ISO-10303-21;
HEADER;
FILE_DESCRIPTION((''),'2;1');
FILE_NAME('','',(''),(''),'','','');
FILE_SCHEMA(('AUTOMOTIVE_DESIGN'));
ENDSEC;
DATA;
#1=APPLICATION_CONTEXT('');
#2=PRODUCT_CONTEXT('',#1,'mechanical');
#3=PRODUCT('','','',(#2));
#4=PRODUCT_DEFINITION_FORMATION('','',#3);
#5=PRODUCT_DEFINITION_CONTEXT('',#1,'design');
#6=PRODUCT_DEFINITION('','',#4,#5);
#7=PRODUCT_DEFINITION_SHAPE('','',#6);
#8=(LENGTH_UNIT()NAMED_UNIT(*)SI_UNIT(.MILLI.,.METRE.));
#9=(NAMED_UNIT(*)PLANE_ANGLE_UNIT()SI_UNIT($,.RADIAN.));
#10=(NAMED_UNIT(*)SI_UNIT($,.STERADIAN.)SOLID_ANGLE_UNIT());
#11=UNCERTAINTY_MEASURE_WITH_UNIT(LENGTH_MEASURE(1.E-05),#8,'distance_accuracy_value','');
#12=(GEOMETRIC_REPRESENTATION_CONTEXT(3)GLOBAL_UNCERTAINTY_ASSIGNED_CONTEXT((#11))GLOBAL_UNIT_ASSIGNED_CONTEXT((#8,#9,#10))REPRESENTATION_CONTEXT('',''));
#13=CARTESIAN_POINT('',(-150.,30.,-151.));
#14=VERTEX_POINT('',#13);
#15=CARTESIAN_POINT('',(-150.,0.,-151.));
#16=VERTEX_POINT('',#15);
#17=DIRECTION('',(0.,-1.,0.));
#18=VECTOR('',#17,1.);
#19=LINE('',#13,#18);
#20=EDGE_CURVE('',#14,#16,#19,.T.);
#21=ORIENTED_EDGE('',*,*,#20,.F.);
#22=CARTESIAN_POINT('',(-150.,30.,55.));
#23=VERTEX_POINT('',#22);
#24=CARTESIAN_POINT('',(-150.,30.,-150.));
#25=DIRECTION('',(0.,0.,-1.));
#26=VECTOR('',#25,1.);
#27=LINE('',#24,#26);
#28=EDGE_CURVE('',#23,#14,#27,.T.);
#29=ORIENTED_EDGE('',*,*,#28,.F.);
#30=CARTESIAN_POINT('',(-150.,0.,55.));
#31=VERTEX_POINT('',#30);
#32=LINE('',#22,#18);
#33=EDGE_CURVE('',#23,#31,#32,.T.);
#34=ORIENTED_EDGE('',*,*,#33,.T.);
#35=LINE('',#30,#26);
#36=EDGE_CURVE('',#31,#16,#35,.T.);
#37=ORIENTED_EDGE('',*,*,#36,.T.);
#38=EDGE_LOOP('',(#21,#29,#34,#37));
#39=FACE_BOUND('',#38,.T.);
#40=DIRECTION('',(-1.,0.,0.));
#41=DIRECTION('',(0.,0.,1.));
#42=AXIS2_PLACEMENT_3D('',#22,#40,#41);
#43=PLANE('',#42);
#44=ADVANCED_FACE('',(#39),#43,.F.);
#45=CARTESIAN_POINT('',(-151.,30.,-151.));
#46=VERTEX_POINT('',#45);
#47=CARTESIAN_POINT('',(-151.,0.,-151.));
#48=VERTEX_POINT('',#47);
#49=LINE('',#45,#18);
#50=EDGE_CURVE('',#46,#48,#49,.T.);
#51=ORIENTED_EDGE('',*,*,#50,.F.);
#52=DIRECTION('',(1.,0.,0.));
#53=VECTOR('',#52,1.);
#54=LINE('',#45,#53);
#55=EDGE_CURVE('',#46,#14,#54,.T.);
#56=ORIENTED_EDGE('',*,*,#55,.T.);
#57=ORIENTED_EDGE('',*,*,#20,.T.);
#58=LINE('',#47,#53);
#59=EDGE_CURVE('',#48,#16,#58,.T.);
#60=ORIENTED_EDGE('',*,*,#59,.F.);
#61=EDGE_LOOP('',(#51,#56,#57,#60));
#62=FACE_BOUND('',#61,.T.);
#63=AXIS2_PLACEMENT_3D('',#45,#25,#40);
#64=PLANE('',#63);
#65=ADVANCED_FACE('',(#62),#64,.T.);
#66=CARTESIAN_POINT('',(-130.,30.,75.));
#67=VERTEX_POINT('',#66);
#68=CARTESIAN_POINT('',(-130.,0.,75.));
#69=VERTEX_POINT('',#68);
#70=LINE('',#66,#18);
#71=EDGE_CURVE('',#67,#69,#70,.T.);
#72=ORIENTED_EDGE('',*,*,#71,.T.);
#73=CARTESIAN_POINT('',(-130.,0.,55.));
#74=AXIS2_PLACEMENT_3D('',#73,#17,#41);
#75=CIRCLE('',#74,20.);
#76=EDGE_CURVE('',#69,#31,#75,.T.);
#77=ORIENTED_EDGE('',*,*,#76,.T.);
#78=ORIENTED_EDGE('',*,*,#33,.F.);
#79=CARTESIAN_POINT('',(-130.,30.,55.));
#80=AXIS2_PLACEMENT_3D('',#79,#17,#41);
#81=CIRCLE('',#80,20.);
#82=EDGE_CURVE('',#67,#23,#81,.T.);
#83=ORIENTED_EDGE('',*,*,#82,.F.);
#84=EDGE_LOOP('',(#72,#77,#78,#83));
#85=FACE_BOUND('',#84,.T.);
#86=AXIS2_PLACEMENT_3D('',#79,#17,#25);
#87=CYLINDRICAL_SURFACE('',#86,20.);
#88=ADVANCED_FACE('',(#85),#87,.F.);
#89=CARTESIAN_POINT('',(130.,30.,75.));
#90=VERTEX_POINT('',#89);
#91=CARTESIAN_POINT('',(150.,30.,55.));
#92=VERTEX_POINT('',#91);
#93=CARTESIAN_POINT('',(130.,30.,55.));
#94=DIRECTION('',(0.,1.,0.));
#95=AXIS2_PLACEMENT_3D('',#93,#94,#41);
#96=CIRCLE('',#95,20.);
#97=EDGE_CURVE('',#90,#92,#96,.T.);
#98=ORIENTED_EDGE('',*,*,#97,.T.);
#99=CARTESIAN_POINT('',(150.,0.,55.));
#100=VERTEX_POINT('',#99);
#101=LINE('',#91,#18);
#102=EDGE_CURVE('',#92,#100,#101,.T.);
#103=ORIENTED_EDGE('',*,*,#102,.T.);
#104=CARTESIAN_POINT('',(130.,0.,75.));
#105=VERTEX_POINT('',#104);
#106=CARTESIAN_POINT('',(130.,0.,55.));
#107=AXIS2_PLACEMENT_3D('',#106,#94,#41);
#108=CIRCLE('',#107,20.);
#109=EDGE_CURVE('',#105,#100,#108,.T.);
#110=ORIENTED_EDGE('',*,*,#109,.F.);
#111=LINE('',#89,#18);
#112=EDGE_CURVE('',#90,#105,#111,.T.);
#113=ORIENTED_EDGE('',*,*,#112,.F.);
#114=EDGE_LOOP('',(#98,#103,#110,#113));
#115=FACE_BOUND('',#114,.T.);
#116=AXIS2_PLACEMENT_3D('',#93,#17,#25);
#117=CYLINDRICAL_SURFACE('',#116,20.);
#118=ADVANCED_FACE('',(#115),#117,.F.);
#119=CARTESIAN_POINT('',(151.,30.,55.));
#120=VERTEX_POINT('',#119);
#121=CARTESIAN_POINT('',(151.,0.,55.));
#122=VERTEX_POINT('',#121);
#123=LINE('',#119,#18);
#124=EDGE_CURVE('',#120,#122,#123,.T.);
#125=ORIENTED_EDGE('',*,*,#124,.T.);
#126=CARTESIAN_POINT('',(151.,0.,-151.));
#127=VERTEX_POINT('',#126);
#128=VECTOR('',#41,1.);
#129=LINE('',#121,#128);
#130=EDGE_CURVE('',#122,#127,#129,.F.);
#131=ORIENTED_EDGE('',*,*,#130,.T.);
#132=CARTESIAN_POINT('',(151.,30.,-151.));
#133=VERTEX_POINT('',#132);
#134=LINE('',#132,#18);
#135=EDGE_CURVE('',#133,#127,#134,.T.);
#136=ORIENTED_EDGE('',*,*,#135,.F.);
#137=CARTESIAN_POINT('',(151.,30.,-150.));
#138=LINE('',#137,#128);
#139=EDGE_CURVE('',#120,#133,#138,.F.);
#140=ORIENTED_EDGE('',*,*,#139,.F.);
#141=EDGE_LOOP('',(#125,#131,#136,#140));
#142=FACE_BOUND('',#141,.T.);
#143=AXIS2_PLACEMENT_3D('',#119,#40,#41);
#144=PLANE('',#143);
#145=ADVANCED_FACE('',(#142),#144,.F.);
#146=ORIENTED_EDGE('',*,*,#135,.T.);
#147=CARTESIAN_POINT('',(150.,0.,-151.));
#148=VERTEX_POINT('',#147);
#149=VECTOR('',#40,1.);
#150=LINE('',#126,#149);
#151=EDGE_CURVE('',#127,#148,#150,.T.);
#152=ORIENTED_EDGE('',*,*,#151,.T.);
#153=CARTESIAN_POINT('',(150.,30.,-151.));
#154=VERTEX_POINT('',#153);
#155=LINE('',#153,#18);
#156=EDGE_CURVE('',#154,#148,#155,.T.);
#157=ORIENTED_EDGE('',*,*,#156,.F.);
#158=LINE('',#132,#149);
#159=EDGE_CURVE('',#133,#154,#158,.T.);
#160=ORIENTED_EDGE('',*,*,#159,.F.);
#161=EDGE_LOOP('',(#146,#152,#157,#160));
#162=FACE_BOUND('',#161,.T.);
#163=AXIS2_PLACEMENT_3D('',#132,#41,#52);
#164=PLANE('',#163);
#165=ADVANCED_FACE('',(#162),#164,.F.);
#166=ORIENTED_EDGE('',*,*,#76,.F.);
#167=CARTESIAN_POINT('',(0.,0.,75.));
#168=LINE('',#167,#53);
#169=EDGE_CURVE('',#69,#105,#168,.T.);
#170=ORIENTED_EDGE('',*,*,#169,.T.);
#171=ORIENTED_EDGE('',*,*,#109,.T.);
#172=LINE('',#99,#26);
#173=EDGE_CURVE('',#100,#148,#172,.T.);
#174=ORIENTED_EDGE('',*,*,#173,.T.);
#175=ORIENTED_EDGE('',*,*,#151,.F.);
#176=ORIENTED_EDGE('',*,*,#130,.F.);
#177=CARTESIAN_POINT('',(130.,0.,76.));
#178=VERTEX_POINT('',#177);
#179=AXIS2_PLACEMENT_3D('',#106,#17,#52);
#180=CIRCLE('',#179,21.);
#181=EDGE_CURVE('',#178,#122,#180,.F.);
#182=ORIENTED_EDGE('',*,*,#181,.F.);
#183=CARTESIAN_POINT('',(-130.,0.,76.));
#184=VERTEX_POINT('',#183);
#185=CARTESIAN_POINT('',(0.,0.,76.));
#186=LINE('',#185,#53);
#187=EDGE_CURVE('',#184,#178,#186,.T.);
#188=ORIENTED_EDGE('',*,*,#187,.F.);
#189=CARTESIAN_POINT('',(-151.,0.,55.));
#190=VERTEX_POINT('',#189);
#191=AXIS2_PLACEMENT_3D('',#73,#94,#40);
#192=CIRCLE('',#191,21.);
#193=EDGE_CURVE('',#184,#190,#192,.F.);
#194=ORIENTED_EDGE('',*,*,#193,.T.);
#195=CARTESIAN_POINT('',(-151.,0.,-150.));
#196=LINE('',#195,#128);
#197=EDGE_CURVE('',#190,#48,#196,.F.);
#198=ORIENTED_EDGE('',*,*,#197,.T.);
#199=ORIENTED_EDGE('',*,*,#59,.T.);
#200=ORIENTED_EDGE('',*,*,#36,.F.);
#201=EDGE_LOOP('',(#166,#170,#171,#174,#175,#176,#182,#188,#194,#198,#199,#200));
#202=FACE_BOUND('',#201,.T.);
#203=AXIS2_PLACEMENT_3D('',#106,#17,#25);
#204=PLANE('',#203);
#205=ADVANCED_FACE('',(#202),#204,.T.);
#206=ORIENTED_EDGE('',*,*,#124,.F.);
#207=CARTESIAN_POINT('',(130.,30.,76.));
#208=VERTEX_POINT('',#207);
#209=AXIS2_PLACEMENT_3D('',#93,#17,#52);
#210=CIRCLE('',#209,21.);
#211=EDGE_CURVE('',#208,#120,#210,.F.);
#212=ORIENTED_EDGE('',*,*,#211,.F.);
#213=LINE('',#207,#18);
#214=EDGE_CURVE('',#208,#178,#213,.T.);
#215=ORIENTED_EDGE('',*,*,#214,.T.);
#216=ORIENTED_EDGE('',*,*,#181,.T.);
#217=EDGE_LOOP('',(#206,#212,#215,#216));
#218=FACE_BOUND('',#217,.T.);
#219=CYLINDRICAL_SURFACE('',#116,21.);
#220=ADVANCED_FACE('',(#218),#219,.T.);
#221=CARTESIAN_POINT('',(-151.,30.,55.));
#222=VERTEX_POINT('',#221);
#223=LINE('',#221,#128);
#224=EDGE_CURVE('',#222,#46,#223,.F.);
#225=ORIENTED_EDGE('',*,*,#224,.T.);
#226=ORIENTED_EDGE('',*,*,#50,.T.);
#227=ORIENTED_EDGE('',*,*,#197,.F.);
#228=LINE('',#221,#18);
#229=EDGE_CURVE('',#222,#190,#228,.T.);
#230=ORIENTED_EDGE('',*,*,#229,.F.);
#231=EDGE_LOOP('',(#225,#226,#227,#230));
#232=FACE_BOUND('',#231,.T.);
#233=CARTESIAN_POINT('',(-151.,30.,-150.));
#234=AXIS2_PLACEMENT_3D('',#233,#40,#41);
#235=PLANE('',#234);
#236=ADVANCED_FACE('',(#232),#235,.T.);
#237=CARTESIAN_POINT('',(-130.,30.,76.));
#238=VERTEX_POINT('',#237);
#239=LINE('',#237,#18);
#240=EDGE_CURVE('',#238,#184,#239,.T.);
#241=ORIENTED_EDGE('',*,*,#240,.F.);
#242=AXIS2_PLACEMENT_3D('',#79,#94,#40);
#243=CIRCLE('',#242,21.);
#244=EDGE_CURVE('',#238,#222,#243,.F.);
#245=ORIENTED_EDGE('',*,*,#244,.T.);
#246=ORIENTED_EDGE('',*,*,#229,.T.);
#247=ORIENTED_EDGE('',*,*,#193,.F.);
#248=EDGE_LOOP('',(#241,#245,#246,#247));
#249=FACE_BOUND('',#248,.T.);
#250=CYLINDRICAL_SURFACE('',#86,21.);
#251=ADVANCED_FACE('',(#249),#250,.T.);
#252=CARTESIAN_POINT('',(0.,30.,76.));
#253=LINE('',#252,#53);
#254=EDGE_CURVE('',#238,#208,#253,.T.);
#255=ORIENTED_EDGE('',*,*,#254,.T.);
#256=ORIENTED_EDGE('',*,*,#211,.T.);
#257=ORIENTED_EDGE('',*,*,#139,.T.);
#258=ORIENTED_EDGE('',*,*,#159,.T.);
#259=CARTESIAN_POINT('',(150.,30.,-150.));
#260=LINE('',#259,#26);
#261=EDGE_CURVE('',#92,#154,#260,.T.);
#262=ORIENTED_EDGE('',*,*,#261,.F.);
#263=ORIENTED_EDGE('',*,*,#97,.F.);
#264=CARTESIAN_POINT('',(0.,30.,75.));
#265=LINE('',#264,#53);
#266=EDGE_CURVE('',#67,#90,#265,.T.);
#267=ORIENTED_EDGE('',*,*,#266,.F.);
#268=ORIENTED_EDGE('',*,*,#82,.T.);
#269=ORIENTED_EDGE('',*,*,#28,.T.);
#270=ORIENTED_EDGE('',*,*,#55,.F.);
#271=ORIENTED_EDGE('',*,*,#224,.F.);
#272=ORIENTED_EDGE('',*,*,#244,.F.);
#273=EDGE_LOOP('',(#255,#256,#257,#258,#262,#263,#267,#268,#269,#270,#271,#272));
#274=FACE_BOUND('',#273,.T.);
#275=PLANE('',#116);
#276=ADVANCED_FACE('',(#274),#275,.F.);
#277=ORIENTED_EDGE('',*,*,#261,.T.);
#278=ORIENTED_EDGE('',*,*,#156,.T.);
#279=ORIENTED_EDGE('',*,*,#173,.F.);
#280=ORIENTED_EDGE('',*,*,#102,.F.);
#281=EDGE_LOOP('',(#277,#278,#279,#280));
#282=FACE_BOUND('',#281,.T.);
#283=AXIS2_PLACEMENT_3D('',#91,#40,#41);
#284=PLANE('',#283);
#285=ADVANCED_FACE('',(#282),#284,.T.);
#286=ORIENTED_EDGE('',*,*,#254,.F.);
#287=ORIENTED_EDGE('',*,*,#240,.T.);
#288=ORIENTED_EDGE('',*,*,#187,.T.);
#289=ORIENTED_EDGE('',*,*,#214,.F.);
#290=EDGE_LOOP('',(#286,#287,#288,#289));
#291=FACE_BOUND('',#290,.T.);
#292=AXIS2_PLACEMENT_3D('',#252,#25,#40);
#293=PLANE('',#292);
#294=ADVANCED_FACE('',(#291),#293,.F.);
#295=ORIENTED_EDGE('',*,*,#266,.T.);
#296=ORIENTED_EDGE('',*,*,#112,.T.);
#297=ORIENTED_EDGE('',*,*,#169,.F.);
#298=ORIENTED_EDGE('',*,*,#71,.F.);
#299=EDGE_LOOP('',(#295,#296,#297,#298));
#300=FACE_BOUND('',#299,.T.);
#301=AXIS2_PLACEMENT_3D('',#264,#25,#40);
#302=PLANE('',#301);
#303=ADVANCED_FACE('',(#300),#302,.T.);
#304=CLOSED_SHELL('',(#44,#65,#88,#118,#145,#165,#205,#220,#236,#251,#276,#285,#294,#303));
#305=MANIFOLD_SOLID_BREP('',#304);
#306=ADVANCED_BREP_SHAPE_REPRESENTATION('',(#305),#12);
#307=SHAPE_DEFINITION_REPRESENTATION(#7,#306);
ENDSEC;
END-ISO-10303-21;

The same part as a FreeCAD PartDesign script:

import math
import FreeCAD as App
import Part
import Sketcher

V = App.Vector

doc = App.newDocument("Part")
body = doc.addObject("PartDesign::Body", "Body")

# Sketch on XZ plane
sketch1 = body.newObject("Sketcher::SketchObject", "Sketch")
sketch1.AttachmentSupport = (doc.getObject("XZ_Plane"), [""])
sketch1.MapMode = "FlatFace"
sketch1.addGeometry([
    Part.LineSegment(V(0, 75, 0), V(130, 75, 0)),  # 0
    Part.ArcOfCircle(Part.Circle(V(130, 55, 0), V(0, 0, 1), 20), math.radians(0), math.radians(90)),  # 1
    Part.LineSegment(V(150, 55, 0), V(150, -151, 0)),  # 2
    Part.LineSegment(V(150, -151, 0), V(151, -151, 0)),  # 3
    Part.LineSegment(V(151, -151, 0), V(151, 55, 0)),  # 4
    Part.ArcOfCircle(Part.Circle(V(130, 55, 0), V(0, 0, 1), 21), math.radians(0), math.radians(90)),  # 5
    Part.LineSegment(V(130, 76, 0), V(0, 76, 0)),  # 6
    Part.LineSegment(V(0, 76, 0), V(0, 75, 0)),  # 7
], False)
sketch1.addConstraint([
    Sketcher.Constraint("Tangent", 0, 2, 1, 2),
    Sketcher.Constraint("Tangent", 1, 1, 2, 1),
    Sketcher.Constraint("Coincident", 2, 2, 3, 1),
    Sketcher.Constraint("Coincident", 3, 2, 4, 1),
    Sketcher.Constraint("Tangent", 4, 2, 5, 1),
    Sketcher.Constraint("Tangent", 5, 2, 6, 1),
    Sketcher.Constraint("Coincident", 6, 2, 7, 1),
    Sketcher.Constraint("Coincident", 7, 2, 0, 1),
    Sketcher.Constraint("Horizontal", 0),
    Sketcher.Constraint("Vertical", 2),
    Sketcher.Constraint("Horizontal", 3),
    Sketcher.Constraint("Vertical", 4),
    Sketcher.Constraint("Horizontal", 6),
    Sketcher.Constraint("Vertical", 7),
    Sketcher.Constraint("Coincident", 5, 3, 1, 3),
    Sketcher.Constraint("PointOnObject", 6, 2, -2),
    Sketcher.Constraint("Radius", 1, 20.0),
    Sketcher.Constraint("Radius", 5, 21.0),
    Sketcher.Constraint("DistanceX", 0, 1, 0, 2, 130.0),
    Sketcher.Constraint("DistanceY", 2, 2, 2, 1, 206.0),
    Sketcher.Constraint("DistanceY", -1, 1, 1, 3, 55.0),
])
pad1 = body.newObject("PartDesign::Pad", "Pad")
pad1.Profile = sketch1
pad1.Length = 30
pad1.Reversed = True
doc.recompute()

mirrored = body.newObject("PartDesign::Mirrored", "Mirrored")
mirrored.Originals = [pad1]
mirrored.MirrorPlane = (doc.getObject("YZ_Plane"), [""])
body.Tip = mirrored

doc.recompute()
